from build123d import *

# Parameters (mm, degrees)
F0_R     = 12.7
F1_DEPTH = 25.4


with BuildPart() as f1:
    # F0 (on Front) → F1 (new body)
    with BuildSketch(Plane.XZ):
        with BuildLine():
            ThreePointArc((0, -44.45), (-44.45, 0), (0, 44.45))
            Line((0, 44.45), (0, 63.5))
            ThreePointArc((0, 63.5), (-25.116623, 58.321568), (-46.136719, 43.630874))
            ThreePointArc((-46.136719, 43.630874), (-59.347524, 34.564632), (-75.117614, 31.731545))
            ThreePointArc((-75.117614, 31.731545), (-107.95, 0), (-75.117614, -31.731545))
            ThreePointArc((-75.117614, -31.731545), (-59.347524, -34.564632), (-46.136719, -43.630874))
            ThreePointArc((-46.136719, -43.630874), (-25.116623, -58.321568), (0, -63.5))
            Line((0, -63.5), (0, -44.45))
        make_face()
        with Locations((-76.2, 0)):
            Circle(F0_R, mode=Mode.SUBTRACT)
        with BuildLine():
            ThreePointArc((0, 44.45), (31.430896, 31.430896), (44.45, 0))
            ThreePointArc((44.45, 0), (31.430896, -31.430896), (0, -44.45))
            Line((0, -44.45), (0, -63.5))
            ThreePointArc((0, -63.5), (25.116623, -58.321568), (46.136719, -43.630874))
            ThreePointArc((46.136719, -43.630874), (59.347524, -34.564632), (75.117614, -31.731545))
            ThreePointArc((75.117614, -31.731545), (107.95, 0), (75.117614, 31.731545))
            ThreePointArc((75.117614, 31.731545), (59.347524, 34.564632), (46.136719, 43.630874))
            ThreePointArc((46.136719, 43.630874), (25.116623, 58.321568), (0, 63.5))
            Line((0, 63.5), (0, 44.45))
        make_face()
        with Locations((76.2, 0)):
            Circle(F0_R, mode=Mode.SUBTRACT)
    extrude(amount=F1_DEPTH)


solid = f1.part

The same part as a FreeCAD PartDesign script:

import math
import FreeCAD as App
import Part
import Sketcher
from FreeCAD import Vector
Q = App.Units.Quantity

doc = App.newDocument("Part")
body = doc.addObject("PartDesign::Body", "Body")

# Sketch on XZ plane
sketch1 = body.newObject("Sketcher::SketchObject", "Sketch")
sketch1.AttachmentSupport = (doc.getObject("XZ_Plane"), [""])
sketch1.MapMode = "FlatFace"
sketch1.addGeometry(Part.ArcOfCircle(Part.Circle(Vector(0, 0, 0), Vector(0, 0, 1), 63), math.radians(-137), math.radians(-90)), False)
sketch1.addGeometry(Part.ArcOfCircle(Part.Circle(Vector(0, 0, 0), Vector(0, 0, 1), 63), math.radians(-90), math.radians(-43)), False)
sketch1.addGeometry(Part.ArcOfCircle(Part.Circle(Vector(74, -70, 0), Vector(0, 0, 1), 38), math.radians(88), math.radians(137)), False)
sketch1.addGeometry(Part.ArcOfCircle(Part.Circle(Vector(76, 0, 0), Vector(0, 0, 1), 32), math.radians(-92), math.radians(92)), False)
sketch1.addGeometry(Part.ArcOfCircle(Part.Circle(Vector(74, 70, 0), Vector(0, 0, 1), 38), math.radians(-137), math.radians(-88)), False)
sketch1.addGeometry(Part.ArcOfCircle(Part.Circle(Vector(0, 0, 0), Vector(0, 0, 1), 63), math.radians(43), math.radians(90)), False)
sketch1.addGeometry(Part.ArcOfCircle(Part.Circle(Vector(0, 0, 0), Vector(0, 0, 1), 63), math.radians(90), math.radians(137)), False)
sketch1.addGeometry(Part.ArcOfCircle(Part.Circle(Vector(-74, 70, 0), Vector(0, 0, 1), 38), math.radians(-92), math.radians(-43)), False)
sketch1.addGeometry(Part.ArcOfCircle(Part.Circle(Vector(-76, 0, 0), Vector(0, 0, 1), 32), math.radians(88), math.radians(272)), False)
sketch1.addGeometry(Part.ArcOfCircle(Part.Circle(Vector(-74, -70, 0), Vector(0, 0, 1), 38), math.radians(43), math.radians(92)), False)
sketch1.addGeometry(Part.Circle(Vector(-76, 0, 0), Vector(0, 0, 1), 13), False)
sketch1.addGeometry(Part.ArcOfCircle(Part.Circle(Vector(0, 0, 0), Vector(0, 0, 1), 44), math.radians(90), math.radians(270)), False)
sketch1.addGeometry(Part.ArcOfCircle(Part.Circle(Vector(0, 0, 0), Vector(0, 0, 1), 44), math.radians(0), math.radians(90)), False)
sketch1.addGeometry(Part.ArcOfCircle(Part.Circle(Vector(0, 0, 0), Vector(0, 0, 1), 44), math.radians(-90), math.radians(0)), False)
sketch1.addGeometry(Part.Circle(Vector(76, 0, 0), Vector(0, 0, 1), 13), False)
sketch1.addConstraint(Sketcher.Constraint("Tangent", 0, 2, 1, 1))
sketch1.addConstraint(Sketcher.Constraint("Tangent", 1, 2, 2, 2))
sketch1.addConstraint(Sketcher.Constraint("Tangent", 2, 1, 3, 1))
sketch1.addConstraint(Sketcher.Constraint("Tangent", 3, 2, 4, 2))
sketch1.addConstraint(Sketcher.Constraint("Tangent", 4, 1, 5, 1))
sketch1.addConstraint(Sketcher.Constraint("Tangent", 5, 2, 6, 1))
sketch1.addConstraint(Sketcher.Constraint("Tangent", 6, 2, 7, 2))
sketch1.addConstraint(Sketcher.Constraint("Tangent", 7, 1, 8, 1))
sketch1.addConstraint(Sketcher.Constraint("Tangent", 8, 2, 9, 2))
sketch1.addConstraint(Sketcher.Constraint("Tangent", 9, 1, 0, 1))
sketch1.addConstraint(Sketcher.Constraint("Tangent", 11, 1, 12, 2))
sketch1.addConstraint(Sketcher.Constraint("Tangent", 12, 1, 13, 2))
sketch1.addConstraint(Sketcher.Constraint("Tangent", 13, 1, 11, 2))
sketch1.addConstraint(Sketcher.Constraint("Coincident", 0, 3, -1, 1))
sketch1.addConstraint(Sketcher.Constraint("Coincident", 5, 3, -1, 1))
sketch1.addConstraint(Sketcher.Constraint("Coincident", 11, 3, -1, 1))
sketch1.addConstraint(Sketcher.Constraint("Coincident", 10, 3, 8, 3))
sketch1.addConstraint(Sketcher.Constraint("Coincident", 14, 3, 3, 3))
sketch1.addConstraint(Sketcher.Constraint("Equal", 0, 1))
sketch1.addConstraint(Sketcher.Constraint("Equal", 2, 4))
sketch1.addConstraint(Sketcher.Constraint("Equal", 1, 5))
sketch1.addConstraint(Sketcher.Constraint("Equal", 5, 6))
sketch1.addConstraint(Sketcher.Constraint("Equal", 4, 7))
sketch1.addConstraint(Sketcher.Constraint("Equal", 3, 8))
sketch1.addConstraint(Sketcher.Constraint("Equal", 7, 9))
sketch1.addConstraint(Sketcher.Constraint("Equal", 10, 14))
sketch1.addConstraint(Sketcher.Constraint("Symmetric", 3, 3, 8, 3, -1, 1))
sketch1.addConstraint(Sketcher.Constraint("PointOnObject", 3, 3, -1))
sketch1.addConstraint(Sketcher.Constraint("PointOnObject", 0, 2, -2))
sketch1.addConstraint(Sketcher.Constraint("PointOnObject", 5, 2, -2))
sketch1.addConstraint(Sketcher.Constraint("PointOnObject", 11, 1, -2))
sketch1.addConstraint(Sketcher.Constraint("PointOnObject", 12, 1, -1))
sketch1.addConstraint(Sketcher.Constraint("PointOnObject", 13, 1, -2))
sketch1.addConstraint(Sketcher.Constraint("Diameter", 10, Q("1 in")))
sketch1.addConstraint(Sketcher.Constraint("Radius", 0, Q("2.4999999 in")))
sketch1.addConstraint(Sketcher.Constraint("Radius", 2, Q("1.5000002 in")))
sketch1.addConstraint(Sketcher.Constraint("Radius", 3, Q("1.25 in")))
sketch1.addConstraint(Sketcher.Constraint("Radius", 11, Q("1.75 in")))
sketch1.addConstraint(Sketcher.Constraint("DistanceX", -1, 1, 3, 3, Q("3 in")))
pad1 = body.newObject("PartDesign::Pad", "Pad")
pad1.Profile = sketch1
pad1.Length = Q("1 in")

doc.recompute()
